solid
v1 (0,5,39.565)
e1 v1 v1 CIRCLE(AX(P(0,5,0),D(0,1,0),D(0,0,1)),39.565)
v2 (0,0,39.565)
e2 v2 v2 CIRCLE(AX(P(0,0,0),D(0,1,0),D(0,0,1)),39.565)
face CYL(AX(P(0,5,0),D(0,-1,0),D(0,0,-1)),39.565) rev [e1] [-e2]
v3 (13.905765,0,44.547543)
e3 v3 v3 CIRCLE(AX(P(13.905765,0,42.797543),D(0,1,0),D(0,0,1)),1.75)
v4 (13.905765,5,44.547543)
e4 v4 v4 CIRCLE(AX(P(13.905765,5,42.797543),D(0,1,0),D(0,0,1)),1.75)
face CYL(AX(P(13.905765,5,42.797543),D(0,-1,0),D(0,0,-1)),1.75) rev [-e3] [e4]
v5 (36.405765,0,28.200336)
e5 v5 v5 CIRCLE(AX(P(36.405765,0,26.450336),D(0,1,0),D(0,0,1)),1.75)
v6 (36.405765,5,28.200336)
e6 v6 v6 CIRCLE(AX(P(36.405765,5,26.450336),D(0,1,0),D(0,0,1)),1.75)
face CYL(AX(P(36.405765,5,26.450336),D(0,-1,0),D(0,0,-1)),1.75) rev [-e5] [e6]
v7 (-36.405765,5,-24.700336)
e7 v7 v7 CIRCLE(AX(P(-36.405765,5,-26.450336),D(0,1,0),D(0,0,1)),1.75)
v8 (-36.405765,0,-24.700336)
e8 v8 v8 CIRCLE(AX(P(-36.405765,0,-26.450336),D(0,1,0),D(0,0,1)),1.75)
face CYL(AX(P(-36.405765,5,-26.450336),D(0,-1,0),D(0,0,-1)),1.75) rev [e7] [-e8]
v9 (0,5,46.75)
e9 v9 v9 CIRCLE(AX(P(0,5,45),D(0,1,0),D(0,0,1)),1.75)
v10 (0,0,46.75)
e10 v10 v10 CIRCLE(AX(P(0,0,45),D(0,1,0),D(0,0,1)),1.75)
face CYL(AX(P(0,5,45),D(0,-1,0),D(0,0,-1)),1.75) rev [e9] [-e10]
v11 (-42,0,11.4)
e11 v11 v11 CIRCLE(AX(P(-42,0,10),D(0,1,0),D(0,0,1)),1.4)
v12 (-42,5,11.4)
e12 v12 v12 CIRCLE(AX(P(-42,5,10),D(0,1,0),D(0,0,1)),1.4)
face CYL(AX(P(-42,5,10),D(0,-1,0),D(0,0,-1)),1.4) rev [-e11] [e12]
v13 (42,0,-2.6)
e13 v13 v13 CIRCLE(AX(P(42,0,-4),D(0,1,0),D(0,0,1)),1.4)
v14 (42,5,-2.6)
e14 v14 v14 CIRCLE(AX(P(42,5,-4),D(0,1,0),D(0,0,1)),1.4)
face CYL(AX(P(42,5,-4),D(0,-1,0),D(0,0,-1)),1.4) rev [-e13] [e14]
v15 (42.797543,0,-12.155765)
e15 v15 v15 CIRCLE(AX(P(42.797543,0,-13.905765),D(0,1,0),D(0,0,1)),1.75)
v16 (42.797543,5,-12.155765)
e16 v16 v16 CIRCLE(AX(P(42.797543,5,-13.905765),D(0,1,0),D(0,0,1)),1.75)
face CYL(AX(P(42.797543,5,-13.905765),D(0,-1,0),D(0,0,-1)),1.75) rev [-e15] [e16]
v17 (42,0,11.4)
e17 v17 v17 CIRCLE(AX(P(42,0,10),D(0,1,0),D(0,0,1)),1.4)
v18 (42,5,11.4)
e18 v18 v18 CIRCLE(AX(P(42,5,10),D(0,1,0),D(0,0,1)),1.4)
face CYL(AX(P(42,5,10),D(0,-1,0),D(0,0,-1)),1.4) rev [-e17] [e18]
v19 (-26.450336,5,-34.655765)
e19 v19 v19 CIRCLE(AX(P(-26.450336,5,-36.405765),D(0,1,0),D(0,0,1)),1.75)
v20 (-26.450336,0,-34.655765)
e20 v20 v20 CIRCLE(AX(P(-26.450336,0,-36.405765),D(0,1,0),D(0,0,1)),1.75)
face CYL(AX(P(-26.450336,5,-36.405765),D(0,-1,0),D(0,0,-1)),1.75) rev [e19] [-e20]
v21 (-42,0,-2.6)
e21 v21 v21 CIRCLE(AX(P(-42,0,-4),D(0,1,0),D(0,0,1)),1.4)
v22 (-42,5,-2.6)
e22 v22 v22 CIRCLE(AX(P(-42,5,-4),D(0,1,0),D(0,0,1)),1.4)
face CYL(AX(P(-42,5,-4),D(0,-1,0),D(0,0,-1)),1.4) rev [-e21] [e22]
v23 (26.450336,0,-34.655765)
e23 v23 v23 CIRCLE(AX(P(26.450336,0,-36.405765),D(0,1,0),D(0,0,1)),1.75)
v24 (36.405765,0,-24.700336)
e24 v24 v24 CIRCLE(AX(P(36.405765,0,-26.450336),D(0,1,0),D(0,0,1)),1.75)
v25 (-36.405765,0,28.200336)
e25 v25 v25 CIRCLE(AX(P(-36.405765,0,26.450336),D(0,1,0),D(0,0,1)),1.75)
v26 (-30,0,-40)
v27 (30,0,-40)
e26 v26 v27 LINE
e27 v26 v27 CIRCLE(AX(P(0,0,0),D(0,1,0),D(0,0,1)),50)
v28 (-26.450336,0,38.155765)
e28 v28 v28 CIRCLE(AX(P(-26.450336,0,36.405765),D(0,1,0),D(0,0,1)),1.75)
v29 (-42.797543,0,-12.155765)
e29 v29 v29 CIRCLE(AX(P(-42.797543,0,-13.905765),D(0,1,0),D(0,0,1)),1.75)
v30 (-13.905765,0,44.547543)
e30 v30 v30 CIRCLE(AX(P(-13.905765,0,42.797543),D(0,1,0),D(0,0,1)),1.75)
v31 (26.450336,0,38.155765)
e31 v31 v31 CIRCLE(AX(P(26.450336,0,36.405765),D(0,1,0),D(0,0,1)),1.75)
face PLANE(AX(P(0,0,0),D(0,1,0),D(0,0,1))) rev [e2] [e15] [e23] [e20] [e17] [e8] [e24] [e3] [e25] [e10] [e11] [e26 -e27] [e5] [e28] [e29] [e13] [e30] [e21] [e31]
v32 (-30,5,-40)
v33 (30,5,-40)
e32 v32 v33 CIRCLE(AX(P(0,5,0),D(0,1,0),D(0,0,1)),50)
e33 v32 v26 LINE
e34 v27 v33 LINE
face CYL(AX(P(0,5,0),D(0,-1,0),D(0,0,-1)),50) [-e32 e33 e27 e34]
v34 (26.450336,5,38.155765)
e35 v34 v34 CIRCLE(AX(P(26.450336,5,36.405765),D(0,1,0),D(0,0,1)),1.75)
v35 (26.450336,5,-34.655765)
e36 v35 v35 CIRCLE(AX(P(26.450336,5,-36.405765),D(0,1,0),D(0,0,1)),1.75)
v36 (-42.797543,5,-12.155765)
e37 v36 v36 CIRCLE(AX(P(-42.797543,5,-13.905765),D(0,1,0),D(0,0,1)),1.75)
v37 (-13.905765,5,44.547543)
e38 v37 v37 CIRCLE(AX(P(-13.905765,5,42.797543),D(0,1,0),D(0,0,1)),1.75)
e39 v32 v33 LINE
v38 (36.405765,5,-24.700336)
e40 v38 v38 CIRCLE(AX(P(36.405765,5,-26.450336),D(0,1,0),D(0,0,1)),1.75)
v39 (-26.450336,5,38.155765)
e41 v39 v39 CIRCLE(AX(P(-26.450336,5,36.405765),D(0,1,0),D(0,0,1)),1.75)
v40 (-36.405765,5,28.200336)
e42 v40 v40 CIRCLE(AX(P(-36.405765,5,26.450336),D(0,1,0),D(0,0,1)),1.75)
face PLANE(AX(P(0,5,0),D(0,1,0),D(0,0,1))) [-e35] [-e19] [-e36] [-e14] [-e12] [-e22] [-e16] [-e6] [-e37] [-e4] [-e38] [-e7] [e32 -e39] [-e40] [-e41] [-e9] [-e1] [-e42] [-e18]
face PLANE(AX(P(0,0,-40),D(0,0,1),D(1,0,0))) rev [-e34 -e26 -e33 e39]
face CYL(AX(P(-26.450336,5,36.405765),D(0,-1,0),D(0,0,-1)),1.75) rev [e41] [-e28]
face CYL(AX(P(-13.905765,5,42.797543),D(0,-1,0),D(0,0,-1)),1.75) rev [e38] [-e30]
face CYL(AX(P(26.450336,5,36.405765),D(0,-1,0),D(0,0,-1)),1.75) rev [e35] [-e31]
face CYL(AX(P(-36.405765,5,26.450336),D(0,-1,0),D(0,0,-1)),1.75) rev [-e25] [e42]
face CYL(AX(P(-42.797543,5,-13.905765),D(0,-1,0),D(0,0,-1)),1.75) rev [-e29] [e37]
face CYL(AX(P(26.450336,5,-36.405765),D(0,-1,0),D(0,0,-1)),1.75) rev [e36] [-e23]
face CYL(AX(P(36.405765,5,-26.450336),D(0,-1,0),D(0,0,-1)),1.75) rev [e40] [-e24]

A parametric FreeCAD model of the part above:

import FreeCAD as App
import Part
import Sketcher


def add_polygon(sketch, points):
    """Adds a closed chain of lines whose ends are joined by coincident constraints."""
    first, n = sketch.GeometryCount, len(points)
    for a, b in zip(points, points[1:] + points[:1]):
        sketch.addGeometry(Part.LineSegment(App.Vector(*a, 0), App.Vector(*b, 0)), False)
    for i in range(n):
        sketch.addConstraint(Sketcher.Constraint("Coincident", first + i, 2, first + (i + 1) % n, 1))

doc = App.newDocument("Part")
body = doc.addObject("PartDesign::Body", "Body")

# Sketch on XZ plane
sketch1 = body.newObject("Sketcher::SketchObject", "Sketch")
sketch1.AttachmentSupport = (doc.getObject("XZ_Plane"), [""])
sketch1.MapMode = "FlatFace"
sketch1.addGeometry([
    Part.Circle(App.Vector(0, 0, 0), App.Vector(0, 0, 1), 50),  # 0
    Part.Circle(App.Vector(-36.4, -26.5, 0), App.Vector(0, 0, 1), 1.8),  # 1
    Part.Circle(App.Vector(-26.5, -36.4, 0), App.Vector(0, 0, 1), 1.8),  # 2
    Part.Circle(App.Vector(-42.8, -13.9, 0), App.Vector(0, 0, 1), 1.8),  # 3
    Part.Circle(App.Vector(-42, -4, 0), App.Vector(0, 0, 1), 1.4),  # 4
    Part.Circle(App.Vector(-42, 10, 0), App.Vector(0, 0, 1), 1.4),  # 5
    Part.Circle(App.Vector(-36.4, 26.5, 0), App.Vector(0, 0, 1), 1.8),  # 6
    Part.Circle(App.Vector(-26.5, 36.4, 0), App.Vector(0, 0, 1), 1.8),  # 7
    Part.Circle(App.Vector(-13.9, 42.8, 0), App.Vector(0, 0, 1), 1.8),  # 8
    Part.Circle(App.Vector(0, 0, 0), App.Vector(0, 0, 1), 39.6),  # 9
    Part.Circle(App.Vector(26.5, -36.4, 0), App.Vector(0, 0, 1), 1.8),  # 10
    Part.Circle(App.Vector(36.4, -26.5, 0), App.Vector(0, 0, 1), 1.8),  # 11
    Part.Circle(App.Vector(42.8, -13.9, 0), App.Vector(0, 0, 1), 1.8),  # 12
    Part.Circle(App.Vector(42, -4, 0), App.Vector(0, 0, 1), 1.4),  # 13
    Part.Circle(App.Vector(0, 45, 0), App.Vector(0, 0, 1), 1.8),  # 14
    Part.Circle(App.Vector(13.9, 42.8, 0), App.Vector(0, 0, 1), 1.8),  # 15
    Part.Circle(App.Vector(42, 10, 0), App.Vector(0, 0, 1), 1.4),  # 16
    Part.Circle(App.Vector(26.5, 36.4, 0), App.Vector(0, 0, 1), 1.8),  # 17
    Part.Circle(App.Vector(36.4, 26.5, 0), App.Vector(0, 0, 1), 1.8),  # 18
], False)
sketch1.addConstraint([
    Sketcher.Constraint("Coincident", 0, 3, -1, 1),
    Sketcher.Constraint("Coincident", 9, 3, -1, 1),
    Sketcher.Constraint("Equal", 1, 2),
    Sketcher.Constraint("Equal", 2, 3),
    Sketcher.Constraint("Equal", 4, 5),
    Sketcher.Constraint("Equal", 3, 6),
    Sketcher.Constraint("Equal", 6, 7),
    Sketcher.Constraint("Equal", 7, 8),
    Sketcher.Constraint("Equal", 8, 10),
    Sketcher.Constraint("Equal", 10, 11),
    Sketcher.Constraint("Equal", 11, 12),
    Sketcher.Constraint("Equal", 5, 13),
    Sketcher.Constraint("Equal", 12, 14),
    Sketcher.Constraint("Equal", 14, 15),
    Sketcher.Constraint("Equal", 13, 16),
    Sketcher.Constraint("Equal", 15, 17),
    Sketcher.Constraint("Equal", 17, 18),
    Sketcher.Constraint("Symmetric", 7, 3, 10, 3, -1, 1),
    Sketcher.Constraint("Symmetric", 6, 3, 11, 3, -1, 1),
    Sketcher.Constraint("Symmetric", 2, 3, 17, 3, -1, 1),
    Sketcher.Constraint("Symmetric", 1, 3, 18, 3, -1, 1),
    Sketcher.Constraint("Symmetric", 2, 3, 10, 3, -2),
    Sketcher.Constraint("Symmetric", 1, 3, 11, 3, -2),
    Sketcher.Constraint("Symmetric", 3, 3, 12, 3, -2),
    Sketcher.Constraint("Symmetric", 4, 3, 13, 3, -2),
    Sketcher.Constraint("Symmetric", 8, 3, 15, 3, -2),
    Sketcher.Constraint("Symmetric", 5, 3, 16, 3, -2),
    Sketcher.Constraint("PointOnObject", 14, 3, -2),
    Sketcher.Constraint("Vertical", 4, 3, 5, 3),
    Sketcher.Constraint("Diameter", 0, 100.0),
    Sketcher.Constraint("Diameter", 1, 3.5),
    Sketcher.Constraint("Diameter", 4, 2.8),
    Sketcher.Constraint("Diameter", 9, 79.13),
    Sketcher.Constraint("DistanceX", 4, 3, -1, 1, 42.0),
    Sketcher.Constraint("DistanceY", 4, 3, -1, 1, 4.0),
    Sketcher.Constraint("DistanceY", -1, 1, 5, 3, 10.0),
    Sketcher.Constraint("DistanceY", -1, 1, 14, 3, 45.0),
    Sketcher.Constraint("DistanceY", 2, 3, 3, 3, 22.5),
    Sketcher.Constraint("DistanceX", 6, 3, 8, 3, 22.5),
    Sketcher.Constraint("DistanceY", 3, 3, 6, 3, 40.356101),
    Sketcher.Constraint("DistanceX", 1, 3, 10, 3, 62.856101),
    Sketcher.Constraint("DistanceX", 1, 3, 2, 3, 9.955428),
    Sketcher.Constraint("DistanceY", 2, 3, 1, 3, 9.955428),
    Sketcher.Constraint("DistanceX", 3, 3, 1, 3, 6.391778),
    Sketcher.Constraint("DistanceY", 7, 3, 8, 3, 6.391778),
])
pad1 = body.newObject("PartDesign::Pad", "Pad")
pad1.Profile = sketch1
pad1.Length = 5
pad1.Reversed = True

# Sketch on XY plane
sketch2 = body.newObject("Sketcher::SketchObject", "Sketch001")
sketch2.AttachmentSupport = (doc.getObject("XY_Plane"), [""])
sketch2.MapMode = "FlatFace"
sketch2.AttachmentOffset = App.Placement(App.Vector(0, 0, -40), App.Rotation())
add_polygon(sketch2, [(-59, 22), (-59, -10), (60, -10), (60, 22)])  # lines 0-3
sketch2.addConstraint([
    Sketcher.Constraint("Vertical", 0),
    Sketcher.Constraint("Horizontal", 1),
    Sketcher.Constraint("Vertical", 2),
    Sketcher.Constraint("Horizontal", 3),
    Sketcher.Constraint("DistanceX", 1, 1, 1, 2, 119.002462),
    Sketcher.Constraint("DistanceY", 0, 2, 0, 1, 31.760523),
    Sketcher.Constraint("DistanceX", 0, 2, -1, 1, 59.381831),
    Sketcher.Constraint("DistanceY", 0, 2, -1, 1, 9.63854),
])
pocket1 = body.newObject("PartDesign::Pocket", "Pocket")
pocket1.Profile = sketch2
pocket1.Type = "ThroughAll"

doc.recompute()
